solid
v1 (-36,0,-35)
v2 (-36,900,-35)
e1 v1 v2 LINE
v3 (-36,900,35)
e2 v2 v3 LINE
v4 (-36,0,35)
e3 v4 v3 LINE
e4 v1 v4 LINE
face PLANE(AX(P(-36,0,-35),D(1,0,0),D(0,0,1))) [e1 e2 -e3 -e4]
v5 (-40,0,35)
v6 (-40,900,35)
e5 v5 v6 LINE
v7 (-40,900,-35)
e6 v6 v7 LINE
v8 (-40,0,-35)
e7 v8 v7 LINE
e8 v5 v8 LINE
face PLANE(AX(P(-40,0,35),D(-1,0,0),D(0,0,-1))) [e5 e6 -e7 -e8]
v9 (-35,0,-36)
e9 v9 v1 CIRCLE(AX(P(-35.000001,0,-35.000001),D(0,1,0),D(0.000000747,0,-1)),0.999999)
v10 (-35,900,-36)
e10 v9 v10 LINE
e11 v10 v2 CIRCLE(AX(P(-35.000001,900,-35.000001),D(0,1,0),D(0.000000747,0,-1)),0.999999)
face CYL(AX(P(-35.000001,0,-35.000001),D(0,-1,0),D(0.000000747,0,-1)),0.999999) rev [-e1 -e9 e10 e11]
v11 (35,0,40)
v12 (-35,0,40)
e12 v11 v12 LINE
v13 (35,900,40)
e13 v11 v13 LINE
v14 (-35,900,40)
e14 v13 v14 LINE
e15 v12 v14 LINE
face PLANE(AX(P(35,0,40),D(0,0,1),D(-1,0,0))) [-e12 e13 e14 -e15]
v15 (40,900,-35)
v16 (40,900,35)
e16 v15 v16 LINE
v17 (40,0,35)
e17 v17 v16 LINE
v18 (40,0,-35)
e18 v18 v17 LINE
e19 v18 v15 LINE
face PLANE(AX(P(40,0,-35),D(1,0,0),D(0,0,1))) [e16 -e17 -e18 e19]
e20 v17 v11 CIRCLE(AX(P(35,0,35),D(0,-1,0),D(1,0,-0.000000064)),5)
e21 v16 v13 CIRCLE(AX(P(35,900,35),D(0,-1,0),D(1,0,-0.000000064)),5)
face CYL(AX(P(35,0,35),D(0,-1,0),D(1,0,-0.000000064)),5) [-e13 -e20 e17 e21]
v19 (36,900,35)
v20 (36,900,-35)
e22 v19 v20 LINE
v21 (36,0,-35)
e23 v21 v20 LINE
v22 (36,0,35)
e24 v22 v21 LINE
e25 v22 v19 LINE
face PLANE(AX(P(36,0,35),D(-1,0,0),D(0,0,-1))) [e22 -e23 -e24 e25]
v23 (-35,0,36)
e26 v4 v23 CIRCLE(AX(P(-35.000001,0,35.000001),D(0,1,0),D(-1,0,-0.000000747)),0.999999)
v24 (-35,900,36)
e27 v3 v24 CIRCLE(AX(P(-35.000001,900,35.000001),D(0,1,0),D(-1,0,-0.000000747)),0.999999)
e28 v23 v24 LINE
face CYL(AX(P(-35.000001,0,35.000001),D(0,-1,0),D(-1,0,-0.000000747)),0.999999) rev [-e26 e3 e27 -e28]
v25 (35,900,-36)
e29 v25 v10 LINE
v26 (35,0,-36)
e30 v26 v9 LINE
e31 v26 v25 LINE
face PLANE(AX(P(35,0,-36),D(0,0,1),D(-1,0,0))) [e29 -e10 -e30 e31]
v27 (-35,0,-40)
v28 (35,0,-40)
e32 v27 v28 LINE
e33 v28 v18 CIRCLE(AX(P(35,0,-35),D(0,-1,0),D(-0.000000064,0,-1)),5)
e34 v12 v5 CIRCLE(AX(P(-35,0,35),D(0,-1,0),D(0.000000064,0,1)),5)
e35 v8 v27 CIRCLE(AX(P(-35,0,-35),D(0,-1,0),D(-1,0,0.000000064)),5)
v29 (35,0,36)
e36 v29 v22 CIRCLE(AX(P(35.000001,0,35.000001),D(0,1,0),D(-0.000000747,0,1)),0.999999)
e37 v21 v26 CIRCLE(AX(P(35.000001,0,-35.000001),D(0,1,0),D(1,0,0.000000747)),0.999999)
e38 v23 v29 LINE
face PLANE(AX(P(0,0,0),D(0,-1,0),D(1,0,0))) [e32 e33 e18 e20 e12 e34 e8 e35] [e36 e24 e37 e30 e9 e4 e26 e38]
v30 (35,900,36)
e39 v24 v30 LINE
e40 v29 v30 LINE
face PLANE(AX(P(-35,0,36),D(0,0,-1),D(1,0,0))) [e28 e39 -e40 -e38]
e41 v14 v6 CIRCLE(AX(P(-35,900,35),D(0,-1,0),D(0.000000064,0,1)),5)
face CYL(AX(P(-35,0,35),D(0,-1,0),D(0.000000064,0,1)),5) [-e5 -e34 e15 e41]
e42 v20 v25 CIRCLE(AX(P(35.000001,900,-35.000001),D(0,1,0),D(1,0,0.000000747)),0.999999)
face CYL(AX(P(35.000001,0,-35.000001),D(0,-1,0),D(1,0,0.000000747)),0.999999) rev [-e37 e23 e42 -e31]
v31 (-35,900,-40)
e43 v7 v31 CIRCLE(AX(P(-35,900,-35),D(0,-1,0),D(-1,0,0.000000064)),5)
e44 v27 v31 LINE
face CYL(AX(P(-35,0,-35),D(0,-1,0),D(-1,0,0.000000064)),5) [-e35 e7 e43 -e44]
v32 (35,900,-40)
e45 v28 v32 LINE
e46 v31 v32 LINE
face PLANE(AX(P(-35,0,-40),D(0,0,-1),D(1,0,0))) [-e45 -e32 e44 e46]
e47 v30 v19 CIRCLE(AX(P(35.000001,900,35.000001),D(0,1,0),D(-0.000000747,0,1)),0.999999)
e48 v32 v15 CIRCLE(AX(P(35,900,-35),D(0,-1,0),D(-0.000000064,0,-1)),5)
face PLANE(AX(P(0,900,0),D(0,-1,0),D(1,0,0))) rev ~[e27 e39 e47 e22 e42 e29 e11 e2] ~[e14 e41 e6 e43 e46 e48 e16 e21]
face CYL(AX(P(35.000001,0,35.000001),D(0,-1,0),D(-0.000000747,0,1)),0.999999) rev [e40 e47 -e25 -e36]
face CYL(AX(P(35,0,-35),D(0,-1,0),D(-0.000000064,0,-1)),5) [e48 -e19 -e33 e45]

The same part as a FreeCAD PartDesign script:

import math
import FreeCAD as App
import Part
import Sketcher

V = App.Vector

doc = App.newDocument("Part")
body = doc.addObject("PartDesign::Body", "Body")

sketch1 = body.newObject("Sketcher::SketchObject", "Sketch")
sketch1.AttachmentSupport = (doc.getObject("XZ_Plane"), [""])
sketch1.MapMode = "FlatFace"
sketch1.addGeometry([
    Part.ArcOfCircle(Part.Circle(V(35, 35, 0), V(0, 0, 1), 5), math.radians(-0.000004), math.radians(90.000004)),
    Part.LineSegment(V(35, 40, 0), V(-35, 40, 0)),
    Part.ArcOfCircle(Part.Circle(V(-35, 35, 0), V(0, 0, 1), 5), math.radians(89.999996), math.radians(180.000004)),
    Part.LineSegment(V(-40, 35, 0), V(-40, -35, 0)),
    Part.ArcOfCircle(Part.Circle(V(-35, -35, 0), V(0, 0, 1), 5), math.radians(179.999996), math.radians(270.000004)),
    Part.LineSegment(V(-35, -40, 0), V(35, -40, 0)),
    Part.ArcOfCircle(Part.Circle(V(35, -35, 0), V(0, 0, 1), 5), math.radians(-90.000004), math.radians(0.000004)),
    Part.LineSegment(V(40, -35, 0), V(40, 35, 0)),
    Part.LineSegment(V(-36, -35, 0), V(-36, 35, 0)),
    Part.ArcOfCircle(Part.Circle(V(-35.000001, 35.000001, 0), V(0, 0, 1), 0.999999), math.radians(89.999957), math.radians(180.000043)),
    Part.LineSegment(V(-35, 36, 0), V(35, 36, 0)),
    Part.ArcOfCircle(Part.Circle(V(35.000001, 35.000001, 0), V(0, 0, 1), 0.999999), math.radians(-0.000043), math.radians(90.000043)),
    Part.LineSegment(V(36, 35, 0), V(36, -35, 0)),
    Part.ArcOfCircle(Part.Circle(V(35.000001, -35.000001, 0), V(0, 0, 1), 0.999999), math.radians(-90.000043), math.radians(0.000043)),
    Part.LineSegment(V(35, -36, 0), V(-35, -36, 0)),
    Part.ArcOfCircle(Part.Circle(V(-35.000001, -35.000001, 0), V(0, 0, 1), 0.999999), math.radians(179.999957), math.radians(270.000043)),
], False)
sketch1.addConstraint([
    Sketcher.Constraint("Tangent", 0, 2, 1, 1),
    Sketcher.Constraint("Tangent", 1, 2, 2, 1),
    Sketcher.Constraint("Tangent", 2, 2, 3, 1),
    Sketcher.Constraint("Tangent", 3, 2, 4, 1),
    Sketcher.Constraint("Tangent", 4, 2, 5, 1),
    Sketcher.Constraint("Tangent", 5, 2, 6, 1),
    Sketcher.Constraint("Tangent", 6, 2, 7, 1),
    Sketcher.Constraint("Tangent", 7, 2, 0, 1),
    Sketcher.Constraint("Tangent", 8, 2, 9, 2),
    Sketcher.Constraint("Tangent", 9, 1, 10, 1),
    Sketcher.Constraint("Tangent", 10, 2, 11, 2),
    Sketcher.Constraint("Tangent", 11, 1, 12, 1),
    Sketcher.Constraint("Tangent", 12, 2, 13, 2),
    Sketcher.Constraint("Tangent", 13, 1, 14, 1),
    Sketcher.Constraint("Tangent", 14, 2, 15, 2),
    Sketcher.Constraint("Tangent", 15, 1, 8, 1),
    Sketcher.Constraint("Horizontal", 1),
    Sketcher.Constraint("Vertical", 3),
    Sketcher.Constraint("Horizontal", 5),
    Sketcher.Constraint("Vertical", 7),
    Sketcher.Constraint("Vertical", 8),
    Sketcher.Constraint("Horizontal", 10),
    Sketcher.Constraint("Vertical", 12),
    Sketcher.Constraint("Horizontal", 14),
    Sketcher.Constraint("Coincident", 9, 3, 2, 3),
    Sketcher.Constraint("Coincident", 11, 3, 0, 3),
    Sketcher.Constraint("Coincident", 13, 3, 6, 3),
    Sketcher.Constraint("Equal", 0, 2),
    Sketcher.Constraint("Equal", 2, 4),
    Sketcher.Constraint("Equal", 4, 6),
    Sketcher.Constraint("Equal", 13, 15),
    Sketcher.Constraint("Symmetric", 0, 3, 4, 3, -1, 1),
    Sketcher.Constraint("Equal", 14, 3),
    Sketcher.Constraint("Radius", 0, 5.0),
    Sketcher.Constraint("Radius", 9, 0.999999),
    Sketcher.Constraint("DistanceX", 1, 2, 1, 1, 70.0),
])
pad1 = body.newObject("PartDesign::Pad", "Pad")
pad1.Profile = sketch1
pad1.Length = 900
pad1.Reversed = True

doc.recompute()
